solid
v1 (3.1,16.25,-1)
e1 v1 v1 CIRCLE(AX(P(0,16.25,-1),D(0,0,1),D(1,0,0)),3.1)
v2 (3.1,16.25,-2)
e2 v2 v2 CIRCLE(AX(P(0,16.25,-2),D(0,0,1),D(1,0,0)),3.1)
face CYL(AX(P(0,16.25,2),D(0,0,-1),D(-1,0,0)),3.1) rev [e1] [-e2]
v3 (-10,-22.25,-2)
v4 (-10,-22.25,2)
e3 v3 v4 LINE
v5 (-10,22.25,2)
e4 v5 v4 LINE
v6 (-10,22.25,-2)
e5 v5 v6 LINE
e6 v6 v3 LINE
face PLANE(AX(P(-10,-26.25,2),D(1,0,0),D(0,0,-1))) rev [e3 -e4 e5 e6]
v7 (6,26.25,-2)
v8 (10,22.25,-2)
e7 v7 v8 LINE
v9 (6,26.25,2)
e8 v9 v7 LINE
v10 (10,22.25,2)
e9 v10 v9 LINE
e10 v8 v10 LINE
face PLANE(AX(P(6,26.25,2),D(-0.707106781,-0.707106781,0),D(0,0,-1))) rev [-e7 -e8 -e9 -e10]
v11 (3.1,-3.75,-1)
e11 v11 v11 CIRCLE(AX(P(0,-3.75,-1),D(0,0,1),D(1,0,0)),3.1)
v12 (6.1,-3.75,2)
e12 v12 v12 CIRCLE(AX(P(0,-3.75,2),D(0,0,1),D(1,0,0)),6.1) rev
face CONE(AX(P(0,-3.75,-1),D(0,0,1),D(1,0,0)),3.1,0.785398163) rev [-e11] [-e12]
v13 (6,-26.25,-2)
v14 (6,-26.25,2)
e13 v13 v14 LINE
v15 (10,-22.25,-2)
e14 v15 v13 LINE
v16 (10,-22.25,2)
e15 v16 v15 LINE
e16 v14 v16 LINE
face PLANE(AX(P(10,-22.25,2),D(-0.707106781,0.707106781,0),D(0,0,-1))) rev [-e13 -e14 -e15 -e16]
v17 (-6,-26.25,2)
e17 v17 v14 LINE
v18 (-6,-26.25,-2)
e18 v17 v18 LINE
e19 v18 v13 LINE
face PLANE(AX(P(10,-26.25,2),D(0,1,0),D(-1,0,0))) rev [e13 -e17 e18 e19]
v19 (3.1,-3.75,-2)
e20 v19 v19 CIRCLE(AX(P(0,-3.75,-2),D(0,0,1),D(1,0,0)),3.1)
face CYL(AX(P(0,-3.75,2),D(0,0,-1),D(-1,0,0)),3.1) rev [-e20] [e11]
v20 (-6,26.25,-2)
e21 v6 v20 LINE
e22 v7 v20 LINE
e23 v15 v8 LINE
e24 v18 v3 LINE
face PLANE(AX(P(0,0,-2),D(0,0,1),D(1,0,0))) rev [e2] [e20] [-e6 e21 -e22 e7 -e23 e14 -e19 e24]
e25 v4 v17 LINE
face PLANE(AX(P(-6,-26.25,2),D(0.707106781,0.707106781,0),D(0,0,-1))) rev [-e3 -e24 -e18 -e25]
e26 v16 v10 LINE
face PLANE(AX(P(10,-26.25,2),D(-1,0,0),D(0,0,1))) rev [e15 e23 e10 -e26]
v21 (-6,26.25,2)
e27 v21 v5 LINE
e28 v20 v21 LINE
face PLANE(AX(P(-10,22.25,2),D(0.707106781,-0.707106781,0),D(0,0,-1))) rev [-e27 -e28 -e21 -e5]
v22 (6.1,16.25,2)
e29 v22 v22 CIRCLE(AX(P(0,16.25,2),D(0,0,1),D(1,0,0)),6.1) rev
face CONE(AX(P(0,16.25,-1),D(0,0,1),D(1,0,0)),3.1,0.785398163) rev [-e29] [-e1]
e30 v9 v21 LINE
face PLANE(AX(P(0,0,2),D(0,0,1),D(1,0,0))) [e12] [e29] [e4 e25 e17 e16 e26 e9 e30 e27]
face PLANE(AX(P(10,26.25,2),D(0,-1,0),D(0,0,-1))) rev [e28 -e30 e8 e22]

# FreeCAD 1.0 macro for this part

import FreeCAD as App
import Part
import Sketcher

V = App.Vector


def edges_at(feature, points):
    """Names of the edges that pass closest to the given points."""
    edges = feature.Shape.Edges
    near = lambda p: min(range(len(edges)), key=lambda i: edges[i].distToShape(Part.Vertex(*p))[0])
    return sorted({f"Edge{near(p) + 1}" for p in points})


def add_polygon(sketch, points):
    """Adds a closed chain of lines whose ends are joined by coincident constraints."""
    first, n = sketch.GeometryCount, len(points)
    for a, b in zip(points, points[1:] + points[:1]):
        sketch.addGeometry(Part.LineSegment(App.Vector(*a, 0), App.Vector(*b, 0)), False)
    for i in range(n):
        sketch.addConstraint(Sketcher.Constraint("Coincident", first + i, 2, first + (i + 1) % n, 1))

doc = App.newDocument("Part")
body = doc.addObject("PartDesign::Body", "Body")

# Sketch on XY plane
sketch1 = body.newObject("Sketcher::SketchObject", "Sketch")
sketch1.AttachmentSupport = (doc.getObject("XY_Plane"), [""])
sketch1.MapMode = "FlatFace"
add_polygon(sketch1, [(-10, 26.2), (-10, -26.2), (10, -26.2), (10, 26.2)])  # lines 0-3
sketch1.addGeometry(Part.Circle(V(0, -3.8, 0), V(0, 0, 1), 3.1), False)  # 4
sketch1.addGeometry(Part.Circle(V(0, 16.2, 0), V(0, 0, 1), 3.1), False)  # 5
sketch1.addConstraint(Sketcher.Constraint("Vertical", 0))
sketch1.addConstraint(Sketcher.Constraint("Horizontal", 1))
sketch1.addConstraint(Sketcher.Constraint("Vertical", 2))
sketch1.addConstraint(Sketcher.Constraint("Horizontal", 3))
sketch1.addConstraint(Sketcher.Constraint("Equal", 4, 5))
sketch1.addConstraint(Sketcher.Constraint("Symmetric", 0, 2, 2, 2, -1, 1))
sketch1.addConstraint(Sketcher.Constraint("PointOnObject", 4, 3, -2))
sketch1.addConstraint(Sketcher.Constraint("PointOnObject", 5, 3, -2))
sketch1.addConstraint(Sketcher.Constraint("Diameter", 4, 6.2))
sketch1.addConstraint(Sketcher.Constraint("DistanceX", 1, 1, 1, 2, 20.0))
sketch1.addConstraint(Sketcher.Constraint("DistanceY", 0, 2, 0, 1, 52.5))
sketch1.addConstraint(Sketcher.Constraint("DistanceY", 4, 3, 5, 3, 20.0))
sketch1.addConstraint(Sketcher.Constraint("DistanceY", 5, 3, 2, 2, 10.0))
pad1 = body.newObject("PartDesign::Pad", "Pad")
pad1.Profile = sketch1
pad1.Length = 4
pad1.Midplane = True
doc.recompute()

chamfer = body.newObject("PartDesign::Chamfer", "Chamfer")
chamfer.Base = (pad1, edges_at(pad1, [
    (-10, 26.25, 0),
    (10, 26.25, 0),
    (10, -26.25, 0),
    (-10, -26.25, 0),
]))
chamfer.Size = 4
doc.recompute()

chamfer2 = body.newObject("PartDesign::Chamfer", "Chamfer001")
chamfer2.Base = (chamfer, edges_at(chamfer, [(-3.1, 16.25, 2), (-3.1, -3.75, 2)]))
chamfer2.Size = 3

doc.recompute()
